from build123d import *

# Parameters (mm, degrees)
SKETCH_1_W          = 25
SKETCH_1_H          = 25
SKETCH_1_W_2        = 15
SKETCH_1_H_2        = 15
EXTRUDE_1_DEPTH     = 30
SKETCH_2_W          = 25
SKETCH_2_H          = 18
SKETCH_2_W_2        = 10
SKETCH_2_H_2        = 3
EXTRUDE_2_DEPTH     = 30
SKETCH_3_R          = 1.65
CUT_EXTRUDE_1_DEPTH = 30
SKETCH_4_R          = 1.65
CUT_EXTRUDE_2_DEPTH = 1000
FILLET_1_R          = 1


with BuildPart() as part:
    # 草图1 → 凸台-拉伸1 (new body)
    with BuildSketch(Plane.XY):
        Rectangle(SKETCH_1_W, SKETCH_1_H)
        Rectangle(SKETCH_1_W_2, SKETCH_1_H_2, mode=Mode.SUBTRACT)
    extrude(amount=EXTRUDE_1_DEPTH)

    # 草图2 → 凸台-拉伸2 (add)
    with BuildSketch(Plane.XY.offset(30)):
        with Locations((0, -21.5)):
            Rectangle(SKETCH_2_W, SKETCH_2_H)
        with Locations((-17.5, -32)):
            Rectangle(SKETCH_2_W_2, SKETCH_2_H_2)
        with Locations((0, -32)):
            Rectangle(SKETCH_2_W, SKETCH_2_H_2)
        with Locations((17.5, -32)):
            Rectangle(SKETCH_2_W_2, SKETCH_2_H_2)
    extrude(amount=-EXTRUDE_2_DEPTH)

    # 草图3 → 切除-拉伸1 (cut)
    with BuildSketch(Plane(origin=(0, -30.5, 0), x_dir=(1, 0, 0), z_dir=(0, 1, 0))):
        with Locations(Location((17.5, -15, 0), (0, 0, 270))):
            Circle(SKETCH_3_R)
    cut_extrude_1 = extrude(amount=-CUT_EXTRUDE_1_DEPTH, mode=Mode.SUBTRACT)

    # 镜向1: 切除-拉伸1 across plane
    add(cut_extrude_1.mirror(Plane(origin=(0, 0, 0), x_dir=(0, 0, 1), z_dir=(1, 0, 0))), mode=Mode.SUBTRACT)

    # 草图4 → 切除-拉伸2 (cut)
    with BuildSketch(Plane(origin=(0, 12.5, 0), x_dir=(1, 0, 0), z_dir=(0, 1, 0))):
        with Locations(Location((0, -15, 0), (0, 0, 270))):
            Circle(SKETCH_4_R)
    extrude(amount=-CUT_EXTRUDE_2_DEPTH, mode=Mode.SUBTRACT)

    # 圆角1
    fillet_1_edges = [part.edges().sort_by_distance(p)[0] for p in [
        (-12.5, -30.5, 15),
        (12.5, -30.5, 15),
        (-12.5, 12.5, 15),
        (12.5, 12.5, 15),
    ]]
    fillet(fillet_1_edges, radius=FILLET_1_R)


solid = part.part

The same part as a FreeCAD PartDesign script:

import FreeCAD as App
import Part
import Sketcher

V = App.Vector


def edges_at(feature, points):
    """Names of the edges that pass closest to the given points."""
    edges = feature.Shape.Edges
    near = lambda p: min(range(len(edges)), key=lambda i: edges[i].distToShape(Part.Vertex(*p))[0])
    return sorted({f"Edge{near(p) + 1}" for p in points})

doc = App.newDocument("Part")
body = doc.addObject("PartDesign::Body", "Body")

# Sketch on XY plane
sketch1 = doc.addObject("Sketcher::SketchObject", "Sketch")
body.addObject(sketch1)
sketch1.AttachmentSupport = (doc.XY_Plane, [""])
sketch1.MapMode = "FlatFace"
sketch1.addGeometry([
    Part.LineSegment(V(-12.5, 12.5, 0), V(-12.5, -12.5, 0)),  # 0
    Part.LineSegment(V(-12.5, -12.5, 0), V(12.5, -12.5, 0)),  # 1
    Part.LineSegment(V(12.5, -12.5, 0), V(12.5, 12.5, 0)),  # 2
    Part.LineSegment(V(12.5, 12.5, 0), V(-12.5, 12.5, 0)),  # 3
    Part.LineSegment(V(7.5, -7.5, 0), V(-7.5, -7.5, 0)),  # 4
    Part.LineSegment(V(-7.5, -7.5, 0), V(-7.5, 7.5, 0)),  # 5
    Part.LineSegment(V(-7.5, 7.5, 0), V(7.5, 7.5, 0)),  # 6
    Part.LineSegment(V(7.5, 7.5, 0), V(7.5, -7.5, 0)),  # 7
], False)
sketch1.addConstraint([
    Sketcher.Constraint("Coincident", 0, 2, 1, 1),
    Sketcher.Constraint("Coincident", 1, 2, 2, 1),
    Sketcher.Constraint("Coincident", 2, 2, 3, 1),
    Sketcher.Constraint("Coincident", 3, 2, 0, 1),
    Sketcher.Constraint("Coincident", 4, 2, 5, 1),
    Sketcher.Constraint("Coincident", 5, 2, 6, 1),
    Sketcher.Constraint("Coincident", 6, 2, 7, 1),
    Sketcher.Constraint("Coincident", 7, 2, 4, 1),
    Sketcher.Constraint("Vertical", 0),
    Sketcher.Constraint("Horizontal", 1),
    Sketcher.Constraint("Vertical", 2),
    Sketcher.Constraint("Horizontal", 3),
    Sketcher.Constraint("Horizontal", 4),
    Sketcher.Constraint("Vertical", 5),
    Sketcher.Constraint("Horizontal", 6),
    Sketcher.Constraint("Vertical", 7),
    Sketcher.Constraint("Symmetric", 0, 2, 2, 2, -1, 1),
    Sketcher.Constraint("Symmetric", 4, 2, 6, 2, -1, 1),
    Sketcher.Constraint("Equal", 3, 0),
    Sketcher.Constraint("Equal", 6, 5),
    Sketcher.Constraint("DistanceX", 1, 1, 1, 2, 25.0),
    Sketcher.Constraint("DistanceX", 4, 2, 4, 1, 15.0),
])
pad1 = doc.addObject("PartDesign::Pad", "Pad")
body.addObject(pad1)
pad1.Profile = sketch1
pad1.Length = 30

# Sketch on XY plane
sketch2 = doc.addObject("Sketcher::SketchObject", "Sketch001")
body.addObject(sketch2)
sketch2.AttachmentSupport = (doc.XY_Plane, [""])
sketch2.MapMode = "FlatFace"
sketch2.AttachmentOffset = App.Placement(V(0, 0, 30), App.Rotation())
sketch2.addGeometry([
    Part.LineSegment(V(-12.5, -12.5, 0), V(-12.5, -30.5, 0)),  # 0
    Part.LineSegment(V(-12.5, -30.5, 0), V(-22.5, -30.5, 0)),  # 1
    Part.LineSegment(V(-22.5, -30.5, 0), V(-22.5, -33.5, 0)),  # 2
    Part.LineSegment(V(-22.5, -33.5, 0), V(22.5, -33.5, 0)),  # 3
    Part.LineSegment(V(22.5, -33.5, 0), V(22.5, -30.5, 0)),  # 4
    Part.LineSegment(V(22.5, -30.5, 0), V(12.5, -30.5, 0)),  # 5
    Part.LineSegment(V(12.5, -30.5, 0), V(12.5, -12.5, 0)),  # 6
    Part.LineSegment(V(12.5, -12.5, 0), V(-12.5, -12.5, 0)),  # 7
], False)
sketch2.addConstraint([
    Sketcher.Constraint("Coincident", 0, 2, 1, 1),
    Sketcher.Constraint("Coincident", 1, 2, 2, 1),
    Sketcher.Constraint("Coincident", 2, 2, 3, 1),
    Sketcher.Constraint("Coincident", 3, 2, 4, 1),
    Sketcher.Constraint("Coincident", 4, 2, 5, 1),
    Sketcher.Constraint("Coincident", 5, 2, 6, 1),
    Sketcher.Constraint("Coincident", 6, 2, 7, 1),
    Sketcher.Constraint("Coincident", 7, 2, 0, 1),
    Sketcher.Constraint("Vertical", 0),
    Sketcher.Constraint("Horizontal", 1),
    Sketcher.Constraint("Vertical", 2),
    Sketcher.Constraint("Horizontal", 3),
    Sketcher.Constraint("Vertical", 4),
    Sketcher.Constraint("Horizontal", 5),
    Sketcher.Constraint("Vertical", 6),
    Sketcher.Constraint("Horizontal", 7),
    Sketcher.Constraint("Symmetric", 1, 2, 4, 2, -2),
    Sketcher.Constraint("Equal", 1, 5),
    Sketcher.Constraint("DistanceX", 1, 2, 1, 1, 10.0),
    Sketcher.Constraint("DistanceX", 3, 1, 3, 2, 45.0),
    Sketcher.Constraint("DistanceY", 0, 2, 0, 1, 18.0),
    Sketcher.Constraint("DistanceY", 2, 2, 2, 1, 3.0),
    Sketcher.Constraint("DistanceY", 0, 2, -1, 1, 30.5),
])
pad2 = doc.addObject("PartDesign::Pad", "Pad001")
body.addObject(pad2)
pad2.Profile = sketch2
pad2.Length = 30
pad2.Reversed = True

# Sketch on XZ plane
sketch3 = doc.addObject("Sketcher::SketchObject", "Sketch002")
body.addObject(sketch3)
sketch3.AttachmentSupport = (doc.XZ_Plane, [""])
sketch3.MapMode = "FlatFace"
sketch3.AttachmentOffset = App.Placement(V(0, 0, 30.5), App.Rotation())
sketch3.addGeometry(Part.Circle(V(17.5, 15, 0), V(0, 0, 1), 1.65), False)
sketch3.addConstraint([
    Sketcher.Constraint("Diameter", 0, 3.3),
    Sketcher.Constraint("DistanceY", -1, 1, 0, 3, 15.0),
    Sketcher.Constraint("DistanceX", -1, 1, 0, 3, 17.5),
])
pocket1 = doc.addObject("PartDesign::Pocket", "Pocket")
body.addObject(pocket1)
pocket1.Profile = sketch3
pocket1.Length = 30
pocket1.Reversed = True
doc.recompute()

mirrored = doc.addObject("PartDesign::Mirrored", "Mirrored")
body.addObject(mirrored)
mirrored.Originals = [pocket1]
mirrored.MirrorPlane = (doc.YZ_Plane, [""])
body.Tip = mirrored

# Sketch on XZ plane
sketch4 = doc.addObject("Sketcher::SketchObject", "Sketch003")
body.addObject(sketch4)
sketch4.AttachmentSupport = (doc.XZ_Plane, [""])
sketch4.MapMode = "FlatFace"
sketch4.AttachmentOffset = App.Placement(V(0, 0, -12.5), App.Rotation())
sketch4.addGeometry(Part.Circle(V(0, 15, 0), V(0, 0, 1), 1.65), False)
sketch4.addConstraint([
    Sketcher.Constraint("PointOnObject", 0, 3, -2),
    Sketcher.Constraint("Diameter", 0, 3.3),
    Sketcher.Constraint("DistanceY", -1, 1, 0, 3, 15.0),
])
pocket2 = doc.addObject("PartDesign::Pocket", "Pocket001")
body.addObject(pocket2)
pocket2.Profile = sketch4
pocket2.Length = 1000
pocket2.Reversed = True
doc.recompute()

fillet = doc.addObject("PartDesign::Fillet", "Fillet")
body.addObject(fillet)
fillet.Base = (pocket2, edges_at(pocket2, [
    (-12.5, -30.5, 15),
    (12.5, -30.5, 15),
    (-12.5, 12.5, 15),
    (12.5, 12.5, 15),
]))
fillet.Radius = 1

doc.recompute()
